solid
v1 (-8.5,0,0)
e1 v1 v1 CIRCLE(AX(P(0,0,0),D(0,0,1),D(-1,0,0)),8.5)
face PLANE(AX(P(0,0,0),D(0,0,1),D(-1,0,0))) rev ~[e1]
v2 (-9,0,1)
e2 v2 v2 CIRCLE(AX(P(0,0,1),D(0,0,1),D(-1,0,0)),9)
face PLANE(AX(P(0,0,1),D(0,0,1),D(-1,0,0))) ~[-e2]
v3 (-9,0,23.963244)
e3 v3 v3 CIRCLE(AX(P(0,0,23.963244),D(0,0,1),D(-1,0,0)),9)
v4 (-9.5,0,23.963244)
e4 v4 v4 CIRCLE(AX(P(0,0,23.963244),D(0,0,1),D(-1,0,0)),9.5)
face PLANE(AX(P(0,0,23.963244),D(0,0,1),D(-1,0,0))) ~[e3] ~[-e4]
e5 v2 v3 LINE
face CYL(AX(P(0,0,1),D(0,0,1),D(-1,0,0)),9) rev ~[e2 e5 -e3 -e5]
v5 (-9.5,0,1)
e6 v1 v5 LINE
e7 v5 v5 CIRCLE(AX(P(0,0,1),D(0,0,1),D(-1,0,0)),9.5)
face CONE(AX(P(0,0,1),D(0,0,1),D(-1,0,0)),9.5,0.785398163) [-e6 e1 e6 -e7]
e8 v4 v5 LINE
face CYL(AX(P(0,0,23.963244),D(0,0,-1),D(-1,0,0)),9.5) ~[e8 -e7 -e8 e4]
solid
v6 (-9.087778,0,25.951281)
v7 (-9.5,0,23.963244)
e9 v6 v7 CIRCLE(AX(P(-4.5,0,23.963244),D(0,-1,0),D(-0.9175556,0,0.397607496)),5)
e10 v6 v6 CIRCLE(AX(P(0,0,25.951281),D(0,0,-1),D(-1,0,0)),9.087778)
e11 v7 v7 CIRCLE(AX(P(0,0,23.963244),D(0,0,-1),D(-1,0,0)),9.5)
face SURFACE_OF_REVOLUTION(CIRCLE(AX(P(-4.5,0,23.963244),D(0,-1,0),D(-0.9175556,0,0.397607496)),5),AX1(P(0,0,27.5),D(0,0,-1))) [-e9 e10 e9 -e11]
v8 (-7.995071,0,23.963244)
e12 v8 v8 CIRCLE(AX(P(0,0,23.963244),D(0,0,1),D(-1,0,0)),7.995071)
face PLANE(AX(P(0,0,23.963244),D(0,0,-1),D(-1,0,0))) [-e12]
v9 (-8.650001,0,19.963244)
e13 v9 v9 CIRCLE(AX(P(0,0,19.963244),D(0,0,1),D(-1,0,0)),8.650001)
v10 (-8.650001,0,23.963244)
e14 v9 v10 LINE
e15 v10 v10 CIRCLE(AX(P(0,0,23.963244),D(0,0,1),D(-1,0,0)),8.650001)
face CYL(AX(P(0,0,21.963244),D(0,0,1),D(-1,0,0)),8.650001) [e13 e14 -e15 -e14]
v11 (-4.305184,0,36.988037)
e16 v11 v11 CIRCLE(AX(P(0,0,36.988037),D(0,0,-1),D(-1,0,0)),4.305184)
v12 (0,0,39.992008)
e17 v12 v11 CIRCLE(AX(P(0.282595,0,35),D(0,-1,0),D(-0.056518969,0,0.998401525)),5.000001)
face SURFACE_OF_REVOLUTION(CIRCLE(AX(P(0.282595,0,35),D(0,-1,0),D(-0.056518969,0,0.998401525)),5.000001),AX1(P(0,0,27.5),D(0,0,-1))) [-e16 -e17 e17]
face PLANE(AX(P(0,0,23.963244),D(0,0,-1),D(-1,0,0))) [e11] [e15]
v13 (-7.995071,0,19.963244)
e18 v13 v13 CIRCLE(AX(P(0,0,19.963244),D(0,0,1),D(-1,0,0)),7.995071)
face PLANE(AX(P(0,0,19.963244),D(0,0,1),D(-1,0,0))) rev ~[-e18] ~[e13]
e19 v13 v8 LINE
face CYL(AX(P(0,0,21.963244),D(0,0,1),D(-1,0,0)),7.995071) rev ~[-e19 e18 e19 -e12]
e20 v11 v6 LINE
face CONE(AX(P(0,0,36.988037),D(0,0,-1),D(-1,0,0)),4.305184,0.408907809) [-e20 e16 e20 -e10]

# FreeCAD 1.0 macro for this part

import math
import FreeCAD as App
import Part
import Sketcher


def edges_at(feature, points):
    """Names of the edges that pass closest to the given points."""
    edges = feature.Shape.Edges
    near = lambda p: min(range(len(edges)), key=lambda i: edges[i].distToShape(Part.Vertex(*p))[0])
    return sorted({f"Edge{near(p) + 1}" for p in points})

doc = App.newDocument("Part")
body = doc.addObject("PartDesign::Body", "Body")

# Sketch on XZ plane
sketch1 = doc.addObject("Sketcher::SketchObject", "Sketch")
body.addObject(sketch1)
sketch1.AttachmentSupport = (doc.XZ_Plane, [""])
sketch1.MapMode = "FlatFace"
sketch1.addGeometry([
    Part.LineSegment(App.Vector(-9.5, 0, 0), App.Vector(0, 0, 0)),  # 0
    Part.LineSegment(App.Vector(0, 0, 0), App.Vector(0, 1, 0)),  # 1
    Part.LineSegment(App.Vector(0, 1, 0), App.Vector(-9, 1, 0)),  # 2
    Part.LineSegment(App.Vector(-9, 1, 0), App.Vector(-9, 24, 0)),  # 3
    Part.LineSegment(App.Vector(-9, 24, 0), App.Vector(-9.5, 24, 0)),  # 4
    Part.LineSegment(App.Vector(-9.5, 24, 0), App.Vector(-9.5, 0, 0)),  # 5
], False)
sketch1.addConstraint([
    Sketcher.Constraint("Coincident", 0, 2, 1, 1),
    Sketcher.Constraint("Coincident", 1, 2, 2, 1),
    Sketcher.Constraint("Coincident", 2, 2, 3, 1),
    Sketcher.Constraint("Coincident", 3, 2, 4, 1),
    Sketcher.Constraint("Coincident", 4, 2, 5, 1),
    Sketcher.Constraint("Coincident", 5, 2, 0, 1),
    Sketcher.Constraint("Horizontal", 0),
    Sketcher.Constraint("Vertical", 1),
    Sketcher.Constraint("Horizontal", 2),
    Sketcher.Constraint("Vertical", 3),
    Sketcher.Constraint("Horizontal", 4),
    Sketcher.Constraint("Vertical", 5),
    Sketcher.Constraint("Coincident", 0, 2, -1, 1),
    Sketcher.Constraint("DistanceX", 2, 2, 2, 1, 9.0),
    Sketcher.Constraint("DistanceY", 1, 1, 1, 2, 1.0),
    Sketcher.Constraint("DistanceX", 0, 1, 0, 2, 9.5),
    Sketcher.Constraint("DistanceY", 3, 1, 3, 2, 22.963244),
])
revolution = doc.addObject("PartDesign::Revolution", "Revolution")
body.addObject(revolution)
revolution.Profile = sketch1
revolution.ReferenceAxis = (sketch1, ["V_Axis"])
revolution.Angle = 360
doc.recompute()

chamfer = doc.addObject("PartDesign::Chamfer", "Chamfer")
body.addObject(chamfer)
chamfer.Base = (revolution, edges_at(revolution, [(9.5, 0, 0)]))
chamfer.Size = 1
body2 = doc.addObject("PartDesign::Body", "Body001")

# Sketch on XZ plane
sketch2 = doc.addObject("Sketcher::SketchObject", "Sketch001")
body2.addObject(sketch2)
sketch2.AttachmentSupport = (doc.getObject("XZ_Plane001"), [""])
sketch2.MapMode = "FlatFace"
sketch2.addGeometry([
    Part.ArcOfCircle(Part.Circle(App.Vector(-4.5, 24, 0), App.Vector(0, 0, 1), 5), math.radians(157), math.radians(180)),  # 0
    Part.LineSegment(App.Vector(-9.5, 24, 0), App.Vector(0, 24, 0)),  # 1
    Part.LineSegment(App.Vector(0, 24, 0), App.Vector(0, 40, 0)),  # 2
    Part.ArcOfCircle(Part.Circle(App.Vector(0.3, 35, 0), App.Vector(0, 0, 1), 5), math.radians(93), math.radians(157)),  # 3
    Part.LineSegment(App.Vector(-4.3, 37, 0), App.Vector(-9.1, 26, 0)),  # 4
], False)
sketch2.addConstraint([
    Sketcher.Constraint("Coincident", 0, 2, 1, 1),
    Sketcher.Constraint("Coincident", 1, 2, 2, 1),
    Sketcher.Constraint("Coincident", 2, 2, 3, 1),
    Sketcher.Constraint("Tangent", 3, 2, 4, 1),
    Sketcher.Constraint("Tangent", 4, 2, 0, 1),
    Sketcher.Constraint("Horizontal", 1),
    Sketcher.Constraint("Vertical", 2),
    Sketcher.Constraint("Equal", 0, 3),
    Sketcher.Constraint("PointOnObject", 1, 2, -2),
    Sketcher.Constraint("Radius", 0, 5.0),
    Sketcher.Constraint("DistanceX", 1, 1, 1, 2, 9.5),
    Sketcher.Constraint("DistanceY", -1, 1, 3, 3, 35.0),
    Sketcher.Constraint("DistanceY", 2, 1, 2, 2, 16.028764),
    Sketcher.Constraint("DistanceY", -1, 1, 4, 2, 25.951281),
    Sketcher.Constraint("DistanceY", 3, 3, 2, 2, 4.992008),
])
revolution2 = doc.addObject("PartDesign::Revolution", "Revolution001")
body2.addObject(revolution2)
revolution2.Profile = sketch2
revolution2.ReferenceAxis = (sketch2, ["V_Axis"])
revolution2.Angle = 360

# Sketch on XZ plane
sketch3 = doc.addObject("Sketcher::SketchObject", "Sketch002")
body2.addObject(sketch3)
sketch3.AttachmentSupport = (doc.getObject("XZ_Plane001"), [""])
sketch3.MapMode = "FlatFace"
sketch3.addGeometry([
    Part.LineSegment(App.Vector(-8.7, 24, 0), App.Vector(-8.7, 20, 0)),
    Part.LineSegment(App.Vector(-8.7, 20, 0), App.Vector(-8, 20, 0)),
    Part.LineSegment(App.Vector(-8, 20, 0), App.Vector(-8, 24, 0)),
    Part.LineSegment(App.Vector(-8, 24, 0), App.Vector(-8.7, 24, 0)),
], False)
sketch3.addConstraint([
    Sketcher.Constraint("Coincident", 0, 2, 1, 1),
    Sketcher.Constraint("Coincident", 1, 2, 2, 1),
    Sketcher.Constraint("Coincident", 2, 2, 3, 1),
    Sketcher.Constraint("Coincident", 3, 2, 0, 1),
    Sketcher.Constraint("Vertical", 0),
    Sketcher.Constraint("Horizontal", 1),
    Sketcher.Constraint("Vertical", 2),
    Sketcher.Constraint("Horizontal", 3),
    Sketcher.Constraint("DistanceY", 0, 2, 0, 1, 4.0),
    Sketcher.Constraint("DistanceX", 0, 2, -1, 1, 8.650001),
    Sketcher.Constraint("DistanceX", 1, 1, 1, 2, 0.654929),
    Sketcher.Constraint("DistanceY", -1, 1, 0, 2, 19.963244),
])
revolution3 = doc.addObject("PartDesign::Revolution", "Revolution002")
body2.addObject(revolution3)
revolution3.Profile = sketch3
revolution3.ReferenceAxis = (sketch3, ["V_Axis"])
revolution3.Angle = 360

doc.recompute()
